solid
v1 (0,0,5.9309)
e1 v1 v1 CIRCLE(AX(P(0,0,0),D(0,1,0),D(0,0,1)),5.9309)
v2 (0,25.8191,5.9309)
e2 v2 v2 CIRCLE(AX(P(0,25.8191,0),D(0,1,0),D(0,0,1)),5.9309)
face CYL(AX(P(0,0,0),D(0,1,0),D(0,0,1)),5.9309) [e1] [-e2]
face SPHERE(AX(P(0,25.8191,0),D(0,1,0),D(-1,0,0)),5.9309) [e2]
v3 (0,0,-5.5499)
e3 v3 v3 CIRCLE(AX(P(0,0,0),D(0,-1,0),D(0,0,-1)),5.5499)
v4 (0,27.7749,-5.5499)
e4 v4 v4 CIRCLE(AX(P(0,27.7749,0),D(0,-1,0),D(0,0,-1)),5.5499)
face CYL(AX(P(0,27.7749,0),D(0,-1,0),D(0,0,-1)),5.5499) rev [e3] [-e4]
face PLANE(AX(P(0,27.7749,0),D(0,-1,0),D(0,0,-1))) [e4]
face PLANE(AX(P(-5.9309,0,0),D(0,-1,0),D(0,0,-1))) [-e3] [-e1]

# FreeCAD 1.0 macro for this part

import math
import FreeCAD as App
import Part
import Sketcher

V = App.Vector
Q = App.Units.Quantity

doc = App.newDocument("Part")
params = doc.addObject("Spreadsheet::Sheet", "Params")
for row, (alias, value) in enumerate([
    ("sketch1_height", "1.25 in"),
    ("revolution_angle", "360 deg"),
    ("sketch2_diameter", "0.437 in"),
    ("pocket1_length", "1.0935 in"),
], start=1):
    params.set(f"A{row}", alias)
    params.set(f"B{row}", "=" + value)
    params.setAlias(f"B{row}", alias)

body = doc.addObject("PartDesign::Body", "Body")

sketch1 = body.newObject("Sketcher::SketchObject", "Sketch")
sketch1.AttachmentSupport = (doc.getObject("XY_Plane"), [""])
sketch1.MapMode = "FlatFace"
sketch1.addGeometry([
    Part.LineSegment(V(-6, 26, 0), V(-6, 0, 0)),
    Part.LineSegment(V(-6, 0, 0), V(0, 0, 0)),
    Part.LineSegment(V(0, 0, 0), V(0, 32, 0)),
    Part.ArcOfCircle(Part.Circle(V(0, 26, 0), V(0, 0, 1), 6), math.radians(90), math.radians(180)),
], False)
sketch1.addConstraint([
    Sketcher.Constraint("Coincident", 0, 2, 1, 1),
    Sketcher.Constraint("Coincident", 1, 2, 2, 1),
    Sketcher.Constraint("Coincident", 2, 2, 3, 1),
    Sketcher.Constraint("Tangent", 3, 2, 0, 1),
    Sketcher.Constraint("Vertical", 0),
    Sketcher.Constraint("Horizontal", 1),
    Sketcher.Constraint("Vertical", 2),
    Sketcher.Constraint("Coincident", 1, 2, -1, 1),
    Sketcher.Constraint("PointOnObject", 3, 3, -2),
    Sketcher.Constraint("DistanceY", 2, 1, 2, 2, Q("1.25 in")),
    Sketcher.Constraint("Radius", 3, Q("0.2335 in")),
])
sketch1.setExpression("Constraints[9]", "Params.sketch1_height")
revolution = body.newObject("PartDesign::Revolution", "Revolution")
revolution.Profile = sketch1
revolution.ReferenceAxis = (sketch1, ["V_Axis"])
revolution.setExpression("Angle", "Params.revolution_angle")

sketch2 = body.newObject("Sketcher::SketchObject", "Sketch001")
sketch2.AttachmentSupport = (doc.getObject("XZ_Plane"), [""])
sketch2.MapMode = "FlatFace"
sketch2.addGeometry(Part.Circle(V(0, 0, 0), V(0, 0, 1), 6), False)
sketch2.addConstraint([
    Sketcher.Constraint("Coincident", 0, 3, -1, 1),
    Sketcher.Constraint("Diameter", 0, Q("0.437 in")),
])
sketch2.setExpression("Constraints[1]", "Params.sketch2_diameter")
pocket1 = body.newObject("PartDesign::Pocket", "Pocket")
pocket1.Profile = sketch2
pocket1.setExpression("Length", "Params.pocket1_length")

doc.recompute()
